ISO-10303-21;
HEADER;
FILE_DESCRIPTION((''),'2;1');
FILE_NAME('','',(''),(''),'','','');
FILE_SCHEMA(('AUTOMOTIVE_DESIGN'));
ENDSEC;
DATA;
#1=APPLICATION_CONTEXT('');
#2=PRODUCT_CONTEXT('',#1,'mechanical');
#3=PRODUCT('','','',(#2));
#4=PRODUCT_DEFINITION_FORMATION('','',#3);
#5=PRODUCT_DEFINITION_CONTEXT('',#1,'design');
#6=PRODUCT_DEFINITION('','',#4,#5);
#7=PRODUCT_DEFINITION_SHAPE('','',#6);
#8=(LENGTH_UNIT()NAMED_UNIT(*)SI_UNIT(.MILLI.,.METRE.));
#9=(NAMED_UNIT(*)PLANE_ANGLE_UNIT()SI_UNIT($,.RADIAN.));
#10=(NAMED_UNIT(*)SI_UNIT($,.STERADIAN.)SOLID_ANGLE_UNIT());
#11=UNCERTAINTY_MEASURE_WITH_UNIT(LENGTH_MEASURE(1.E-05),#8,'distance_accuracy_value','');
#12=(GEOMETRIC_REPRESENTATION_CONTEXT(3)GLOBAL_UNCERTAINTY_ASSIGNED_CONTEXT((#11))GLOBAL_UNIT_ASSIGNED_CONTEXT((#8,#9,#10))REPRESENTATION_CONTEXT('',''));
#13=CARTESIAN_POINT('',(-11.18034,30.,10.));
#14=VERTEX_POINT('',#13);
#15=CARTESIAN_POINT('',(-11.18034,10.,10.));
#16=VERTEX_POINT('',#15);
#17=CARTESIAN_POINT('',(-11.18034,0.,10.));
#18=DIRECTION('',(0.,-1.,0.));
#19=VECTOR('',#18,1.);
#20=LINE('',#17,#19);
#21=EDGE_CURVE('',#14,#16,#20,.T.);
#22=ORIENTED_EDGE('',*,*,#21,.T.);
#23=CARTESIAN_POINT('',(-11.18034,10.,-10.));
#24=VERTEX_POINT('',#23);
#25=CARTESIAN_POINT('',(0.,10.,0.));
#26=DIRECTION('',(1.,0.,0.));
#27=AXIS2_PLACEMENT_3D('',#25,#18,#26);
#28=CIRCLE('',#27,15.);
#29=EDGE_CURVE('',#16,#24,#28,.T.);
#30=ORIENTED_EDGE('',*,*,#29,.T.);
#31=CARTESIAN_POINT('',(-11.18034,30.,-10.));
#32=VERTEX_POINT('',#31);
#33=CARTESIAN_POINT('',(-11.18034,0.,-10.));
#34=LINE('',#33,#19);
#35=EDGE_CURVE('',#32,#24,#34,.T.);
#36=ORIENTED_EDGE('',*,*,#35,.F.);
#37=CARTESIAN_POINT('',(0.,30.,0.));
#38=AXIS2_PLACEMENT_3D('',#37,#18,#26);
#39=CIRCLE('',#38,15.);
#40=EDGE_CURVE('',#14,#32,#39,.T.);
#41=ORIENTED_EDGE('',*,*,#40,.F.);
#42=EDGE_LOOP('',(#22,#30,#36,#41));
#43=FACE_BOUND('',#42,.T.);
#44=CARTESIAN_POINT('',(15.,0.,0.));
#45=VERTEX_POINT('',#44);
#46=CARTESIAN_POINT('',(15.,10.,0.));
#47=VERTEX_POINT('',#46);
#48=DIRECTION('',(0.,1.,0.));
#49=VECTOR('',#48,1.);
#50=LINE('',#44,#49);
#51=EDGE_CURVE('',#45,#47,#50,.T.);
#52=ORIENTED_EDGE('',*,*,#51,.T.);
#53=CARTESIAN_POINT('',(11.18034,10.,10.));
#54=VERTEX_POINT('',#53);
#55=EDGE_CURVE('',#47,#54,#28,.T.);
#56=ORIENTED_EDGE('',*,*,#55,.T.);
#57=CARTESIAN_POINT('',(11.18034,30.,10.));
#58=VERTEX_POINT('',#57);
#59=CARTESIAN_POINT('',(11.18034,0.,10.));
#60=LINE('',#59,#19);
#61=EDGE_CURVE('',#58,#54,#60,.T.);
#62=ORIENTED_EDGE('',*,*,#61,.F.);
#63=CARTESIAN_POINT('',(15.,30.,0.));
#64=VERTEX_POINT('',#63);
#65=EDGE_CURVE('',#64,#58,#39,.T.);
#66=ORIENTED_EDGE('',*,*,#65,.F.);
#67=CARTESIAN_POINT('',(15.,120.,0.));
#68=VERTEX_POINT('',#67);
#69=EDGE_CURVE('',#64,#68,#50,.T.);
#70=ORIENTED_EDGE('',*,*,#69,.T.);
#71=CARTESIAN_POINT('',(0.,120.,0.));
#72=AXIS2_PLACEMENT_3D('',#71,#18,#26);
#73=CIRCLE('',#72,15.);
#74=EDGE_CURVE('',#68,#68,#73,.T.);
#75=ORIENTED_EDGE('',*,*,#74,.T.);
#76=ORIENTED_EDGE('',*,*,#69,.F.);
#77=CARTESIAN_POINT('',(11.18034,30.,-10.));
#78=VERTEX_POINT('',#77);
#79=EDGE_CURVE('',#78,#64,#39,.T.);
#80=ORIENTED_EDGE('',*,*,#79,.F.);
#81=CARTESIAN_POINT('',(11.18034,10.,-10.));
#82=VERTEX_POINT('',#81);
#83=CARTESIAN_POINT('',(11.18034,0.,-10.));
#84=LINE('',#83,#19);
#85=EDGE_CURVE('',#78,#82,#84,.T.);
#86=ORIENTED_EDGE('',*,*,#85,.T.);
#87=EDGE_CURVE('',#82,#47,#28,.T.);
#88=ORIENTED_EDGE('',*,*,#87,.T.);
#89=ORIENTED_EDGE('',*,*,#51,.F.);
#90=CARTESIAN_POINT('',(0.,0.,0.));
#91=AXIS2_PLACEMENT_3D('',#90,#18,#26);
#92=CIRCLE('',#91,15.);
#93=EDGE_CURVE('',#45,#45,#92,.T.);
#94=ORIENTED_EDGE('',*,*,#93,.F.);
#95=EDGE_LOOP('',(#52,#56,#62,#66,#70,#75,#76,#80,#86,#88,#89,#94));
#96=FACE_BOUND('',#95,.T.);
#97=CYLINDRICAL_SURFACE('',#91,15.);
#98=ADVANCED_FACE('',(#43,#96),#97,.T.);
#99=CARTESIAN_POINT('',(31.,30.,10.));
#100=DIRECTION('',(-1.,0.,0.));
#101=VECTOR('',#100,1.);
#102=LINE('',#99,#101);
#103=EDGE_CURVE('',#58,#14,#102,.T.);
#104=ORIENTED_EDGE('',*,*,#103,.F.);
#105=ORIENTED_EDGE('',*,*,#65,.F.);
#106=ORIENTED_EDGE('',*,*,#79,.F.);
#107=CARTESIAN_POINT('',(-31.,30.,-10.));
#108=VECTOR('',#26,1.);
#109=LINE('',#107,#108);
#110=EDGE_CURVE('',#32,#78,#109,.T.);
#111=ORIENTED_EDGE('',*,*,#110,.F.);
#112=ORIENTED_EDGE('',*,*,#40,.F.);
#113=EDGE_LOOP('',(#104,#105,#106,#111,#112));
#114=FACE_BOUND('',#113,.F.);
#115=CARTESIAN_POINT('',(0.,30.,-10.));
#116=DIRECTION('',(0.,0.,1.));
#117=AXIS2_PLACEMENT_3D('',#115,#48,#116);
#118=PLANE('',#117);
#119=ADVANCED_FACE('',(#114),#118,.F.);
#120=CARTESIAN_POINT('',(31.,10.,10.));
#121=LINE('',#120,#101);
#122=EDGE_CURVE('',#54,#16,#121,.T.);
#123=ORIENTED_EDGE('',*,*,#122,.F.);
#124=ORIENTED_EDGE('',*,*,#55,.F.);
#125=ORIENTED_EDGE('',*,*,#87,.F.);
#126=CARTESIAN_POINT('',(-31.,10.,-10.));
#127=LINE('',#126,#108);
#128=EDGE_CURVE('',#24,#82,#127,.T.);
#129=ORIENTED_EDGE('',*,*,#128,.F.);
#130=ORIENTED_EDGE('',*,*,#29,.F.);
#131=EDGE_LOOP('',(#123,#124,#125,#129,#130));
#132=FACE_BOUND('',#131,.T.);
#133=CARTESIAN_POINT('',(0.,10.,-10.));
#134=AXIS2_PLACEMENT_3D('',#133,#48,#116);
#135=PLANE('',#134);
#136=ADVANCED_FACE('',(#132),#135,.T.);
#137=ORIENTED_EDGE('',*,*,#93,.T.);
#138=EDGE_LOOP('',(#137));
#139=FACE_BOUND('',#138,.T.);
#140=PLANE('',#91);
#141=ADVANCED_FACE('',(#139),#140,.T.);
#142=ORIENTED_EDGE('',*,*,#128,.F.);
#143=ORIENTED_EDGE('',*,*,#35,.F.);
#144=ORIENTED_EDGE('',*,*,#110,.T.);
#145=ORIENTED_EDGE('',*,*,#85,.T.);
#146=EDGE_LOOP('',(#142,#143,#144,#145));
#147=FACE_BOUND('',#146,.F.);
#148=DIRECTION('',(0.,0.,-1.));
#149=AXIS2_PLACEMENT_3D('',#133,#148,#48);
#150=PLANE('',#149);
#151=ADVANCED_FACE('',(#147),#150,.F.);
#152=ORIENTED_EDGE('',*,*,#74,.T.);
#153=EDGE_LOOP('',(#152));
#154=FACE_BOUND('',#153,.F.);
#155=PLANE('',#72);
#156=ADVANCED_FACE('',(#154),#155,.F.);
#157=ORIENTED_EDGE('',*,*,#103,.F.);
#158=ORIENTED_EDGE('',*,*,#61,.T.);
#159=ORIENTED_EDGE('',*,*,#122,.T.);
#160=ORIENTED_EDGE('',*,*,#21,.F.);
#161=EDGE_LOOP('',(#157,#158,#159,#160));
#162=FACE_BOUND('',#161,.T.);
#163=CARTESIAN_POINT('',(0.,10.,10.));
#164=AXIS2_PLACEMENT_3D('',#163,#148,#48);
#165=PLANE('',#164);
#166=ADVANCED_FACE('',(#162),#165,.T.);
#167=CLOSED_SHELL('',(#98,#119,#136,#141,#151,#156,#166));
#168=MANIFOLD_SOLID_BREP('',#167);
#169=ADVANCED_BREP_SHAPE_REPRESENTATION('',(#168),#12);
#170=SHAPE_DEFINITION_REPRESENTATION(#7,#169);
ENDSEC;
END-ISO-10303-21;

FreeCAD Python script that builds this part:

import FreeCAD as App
import Part
import Sketcher
from FreeCAD import Vector

doc = App.newDocument("Part")
body = doc.addObject("PartDesign::Body", "Body")

# Sketch on XZ plane
sketch1 = body.newObject("Sketcher::SketchObject", "Sketch")
sketch1.AttachmentSupport = (doc.getObject("XZ_Plane"), [""])
sketch1.MapMode = "FlatFace"
sketch1.addGeometry(Part.Circle(Vector(0, 0, 0), Vector(0, 0, 1), 15), False)
sketch1.addConstraint([
    Sketcher.Constraint("Coincident", 0, 3, -1, 1),
    Sketcher.Constraint("Diameter", 0, 30.0),
])
pad1 = body.newObject("PartDesign::Pad", "Pad")
pad1.Profile = sketch1
pad1.Length = 120
pad1.Reversed = True

# Sketch on YZ plane
sketch2 = body.newObject("Sketcher::SketchObject", "Sketch001")
sketch2.AttachmentSupport = (doc.getObject("YZ_Plane"), [""])
sketch2.MapMode = "FlatFace"
sketch2.addGeometry([
    Part.LineSegment(Vector(10, 10, 0), Vector(10, -10, 0)),
    Part.LineSegment(Vector(10, -10, 0), Vector(30, -10, 0)),
    Part.LineSegment(Vector(30, -10, 0), Vector(30, 10, 0)),
    Part.LineSegment(Vector(30, 10, 0), Vector(10, 10, 0)),
], False)
sketch2.addConstraint([
    Sketcher.Constraint("Coincident", 0, 2, 1, 1),
    Sketcher.Constraint("Coincident", 1, 2, 2, 1),
    Sketcher.Constraint("Coincident", 2, 2, 3, 1),
    Sketcher.Constraint("Coincident", 3, 2, 0, 1),
    Sketcher.Constraint("Vertical", 0),
    Sketcher.Constraint("Horizontal", 1),
    Sketcher.Constraint("Vertical", 2),
    Sketcher.Constraint("Horizontal", 3),
    Sketcher.Constraint("Equal", 3, 0),
    Sketcher.Constraint("DistanceX", 1, 1, 1, 2, 20.0),
    Sketcher.Constraint("DistanceX", -1, 1, 0, 2, 10.0),
    Sketcher.Constraint("DistanceY", 0, 2, -1, 1, 10.0),
])
pocket1 = body.newObject("PartDesign::Pocket", "Pocket")
pocket1.Profile = sketch2
pocket1.Length = 62
pocket1.Midplane = True

doc.recompute()
